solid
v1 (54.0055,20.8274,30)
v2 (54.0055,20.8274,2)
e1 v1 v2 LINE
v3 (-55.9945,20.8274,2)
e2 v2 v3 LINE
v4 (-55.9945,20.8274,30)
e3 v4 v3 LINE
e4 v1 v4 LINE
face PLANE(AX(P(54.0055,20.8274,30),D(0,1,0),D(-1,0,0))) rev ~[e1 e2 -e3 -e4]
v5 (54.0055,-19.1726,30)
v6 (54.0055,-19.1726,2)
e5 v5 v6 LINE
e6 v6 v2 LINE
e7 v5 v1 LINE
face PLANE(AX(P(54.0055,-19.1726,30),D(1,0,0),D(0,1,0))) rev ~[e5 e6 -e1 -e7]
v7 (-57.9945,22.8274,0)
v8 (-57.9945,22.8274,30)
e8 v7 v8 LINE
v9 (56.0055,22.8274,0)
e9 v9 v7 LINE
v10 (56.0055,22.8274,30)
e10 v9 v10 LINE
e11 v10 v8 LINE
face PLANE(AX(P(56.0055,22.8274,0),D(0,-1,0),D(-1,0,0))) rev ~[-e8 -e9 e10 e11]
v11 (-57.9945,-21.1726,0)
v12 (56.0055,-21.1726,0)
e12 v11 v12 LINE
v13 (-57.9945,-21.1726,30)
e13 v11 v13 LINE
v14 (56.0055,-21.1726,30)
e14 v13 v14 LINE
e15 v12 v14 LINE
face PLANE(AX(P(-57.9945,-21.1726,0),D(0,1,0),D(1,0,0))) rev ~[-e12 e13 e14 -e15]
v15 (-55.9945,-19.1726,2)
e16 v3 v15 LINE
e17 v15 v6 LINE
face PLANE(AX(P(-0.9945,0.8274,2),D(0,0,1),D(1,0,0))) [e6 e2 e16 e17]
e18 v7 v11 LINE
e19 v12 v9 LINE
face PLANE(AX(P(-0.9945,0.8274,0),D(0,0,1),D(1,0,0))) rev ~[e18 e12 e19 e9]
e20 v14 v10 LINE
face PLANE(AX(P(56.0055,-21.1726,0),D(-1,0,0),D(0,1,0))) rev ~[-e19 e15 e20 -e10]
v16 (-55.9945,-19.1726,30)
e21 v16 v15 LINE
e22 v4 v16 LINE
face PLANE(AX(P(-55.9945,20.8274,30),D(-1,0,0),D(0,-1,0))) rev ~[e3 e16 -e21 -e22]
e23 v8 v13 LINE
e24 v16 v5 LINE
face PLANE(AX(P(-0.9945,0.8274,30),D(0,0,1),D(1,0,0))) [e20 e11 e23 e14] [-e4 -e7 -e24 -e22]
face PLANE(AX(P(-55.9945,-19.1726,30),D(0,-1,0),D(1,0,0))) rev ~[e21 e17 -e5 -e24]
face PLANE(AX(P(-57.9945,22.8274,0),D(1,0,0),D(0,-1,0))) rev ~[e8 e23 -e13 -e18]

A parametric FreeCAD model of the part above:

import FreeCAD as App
import Part
import Sketcher
Q = App.Units.Quantity


def add_polygon(sketch, points):
    """Adds a closed chain of lines whose ends are joined by coincident constraints."""
    first, n = sketch.GeometryCount, len(points)
    for a, b in zip(points, points[1:] + points[:1]):
        sketch.addGeometry(Part.LineSegment(App.Vector(*a, 0), App.Vector(*b, 0)), False)
    for i in range(n):
        sketch.addConstraint(Sketcher.Constraint("Coincident", first + i, 2, first + (i + 1) % n, 1))

doc = App.newDocument("Part")
body = doc.addObject("PartDesign::Body", "Body")

# Sketch on XY plane
sketch1 = body.newObject("Sketcher::SketchObject", "Sketch")
sketch1.AttachmentSupport = (doc.getObject("XY_Plane"), [""])
sketch1.MapMode = "FlatFace"
add_polygon(sketch1, [(-58, 23), (-58, -21), (56, -21), (56, 23)])  # lines 0-3
sketch1.addConstraint([
    Sketcher.Constraint("Vertical", 0),
    Sketcher.Constraint("Horizontal", 1),
    Sketcher.Constraint("Vertical", 2),
    Sketcher.Constraint("Horizontal", 3),
    Sketcher.Constraint("DistanceX", 1, 1, 1, 2, Q("114 mm")),
    Sketcher.Constraint("DistanceY", 0, 2, 0, 1, Q("44 mm")),
    Sketcher.Constraint("DistanceX", 0, 2, -1, 1, Q("57.9945 mm")),
    Sketcher.Constraint("DistanceY", 0, 2, -1, 1, Q("21.1726 mm")),
])
pad1 = body.newObject("PartDesign::Pad", "Pad")
pad1.Profile = sketch1
pad1.Length = 30

# Sketch on XY plane
sketch2 = body.newObject("Sketcher::SketchObject", "Sketch001")
sketch2.AttachmentSupport = (doc.getObject("XY_Plane"), [""])
sketch2.MapMode = "FlatFace"
sketch2.AttachmentOffset = App.Placement(App.Vector(0, 0, 30), App.Rotation())
add_polygon(sketch2, [(-56, 21), (-56, -19), (54, -19), (54, 21)])  # lines 0-3
sketch2.addConstraint([
    Sketcher.Constraint("Vertical", 0),
    Sketcher.Constraint("Horizontal", 1),
    Sketcher.Constraint("Vertical", 2),
    Sketcher.Constraint("Horizontal", 3),
    Sketcher.Constraint("DistanceX", 1, 1, 1, 2, Q("110 mm")),
    Sketcher.Constraint("DistanceY", 0, 2, 0, 1, Q("40 mm")),
    Sketcher.Constraint("DistanceX", 0, 2, -1, 1, Q("55.9945 mm")),
    Sketcher.Constraint("DistanceY", 0, 2, -1, 1, Q("19.1726 mm")),
])
pocket1 = body.newObject("PartDesign::Pocket", "Pocket")
pocket1.Profile = sketch2
pocket1.Length = 28

doc.recompute()
